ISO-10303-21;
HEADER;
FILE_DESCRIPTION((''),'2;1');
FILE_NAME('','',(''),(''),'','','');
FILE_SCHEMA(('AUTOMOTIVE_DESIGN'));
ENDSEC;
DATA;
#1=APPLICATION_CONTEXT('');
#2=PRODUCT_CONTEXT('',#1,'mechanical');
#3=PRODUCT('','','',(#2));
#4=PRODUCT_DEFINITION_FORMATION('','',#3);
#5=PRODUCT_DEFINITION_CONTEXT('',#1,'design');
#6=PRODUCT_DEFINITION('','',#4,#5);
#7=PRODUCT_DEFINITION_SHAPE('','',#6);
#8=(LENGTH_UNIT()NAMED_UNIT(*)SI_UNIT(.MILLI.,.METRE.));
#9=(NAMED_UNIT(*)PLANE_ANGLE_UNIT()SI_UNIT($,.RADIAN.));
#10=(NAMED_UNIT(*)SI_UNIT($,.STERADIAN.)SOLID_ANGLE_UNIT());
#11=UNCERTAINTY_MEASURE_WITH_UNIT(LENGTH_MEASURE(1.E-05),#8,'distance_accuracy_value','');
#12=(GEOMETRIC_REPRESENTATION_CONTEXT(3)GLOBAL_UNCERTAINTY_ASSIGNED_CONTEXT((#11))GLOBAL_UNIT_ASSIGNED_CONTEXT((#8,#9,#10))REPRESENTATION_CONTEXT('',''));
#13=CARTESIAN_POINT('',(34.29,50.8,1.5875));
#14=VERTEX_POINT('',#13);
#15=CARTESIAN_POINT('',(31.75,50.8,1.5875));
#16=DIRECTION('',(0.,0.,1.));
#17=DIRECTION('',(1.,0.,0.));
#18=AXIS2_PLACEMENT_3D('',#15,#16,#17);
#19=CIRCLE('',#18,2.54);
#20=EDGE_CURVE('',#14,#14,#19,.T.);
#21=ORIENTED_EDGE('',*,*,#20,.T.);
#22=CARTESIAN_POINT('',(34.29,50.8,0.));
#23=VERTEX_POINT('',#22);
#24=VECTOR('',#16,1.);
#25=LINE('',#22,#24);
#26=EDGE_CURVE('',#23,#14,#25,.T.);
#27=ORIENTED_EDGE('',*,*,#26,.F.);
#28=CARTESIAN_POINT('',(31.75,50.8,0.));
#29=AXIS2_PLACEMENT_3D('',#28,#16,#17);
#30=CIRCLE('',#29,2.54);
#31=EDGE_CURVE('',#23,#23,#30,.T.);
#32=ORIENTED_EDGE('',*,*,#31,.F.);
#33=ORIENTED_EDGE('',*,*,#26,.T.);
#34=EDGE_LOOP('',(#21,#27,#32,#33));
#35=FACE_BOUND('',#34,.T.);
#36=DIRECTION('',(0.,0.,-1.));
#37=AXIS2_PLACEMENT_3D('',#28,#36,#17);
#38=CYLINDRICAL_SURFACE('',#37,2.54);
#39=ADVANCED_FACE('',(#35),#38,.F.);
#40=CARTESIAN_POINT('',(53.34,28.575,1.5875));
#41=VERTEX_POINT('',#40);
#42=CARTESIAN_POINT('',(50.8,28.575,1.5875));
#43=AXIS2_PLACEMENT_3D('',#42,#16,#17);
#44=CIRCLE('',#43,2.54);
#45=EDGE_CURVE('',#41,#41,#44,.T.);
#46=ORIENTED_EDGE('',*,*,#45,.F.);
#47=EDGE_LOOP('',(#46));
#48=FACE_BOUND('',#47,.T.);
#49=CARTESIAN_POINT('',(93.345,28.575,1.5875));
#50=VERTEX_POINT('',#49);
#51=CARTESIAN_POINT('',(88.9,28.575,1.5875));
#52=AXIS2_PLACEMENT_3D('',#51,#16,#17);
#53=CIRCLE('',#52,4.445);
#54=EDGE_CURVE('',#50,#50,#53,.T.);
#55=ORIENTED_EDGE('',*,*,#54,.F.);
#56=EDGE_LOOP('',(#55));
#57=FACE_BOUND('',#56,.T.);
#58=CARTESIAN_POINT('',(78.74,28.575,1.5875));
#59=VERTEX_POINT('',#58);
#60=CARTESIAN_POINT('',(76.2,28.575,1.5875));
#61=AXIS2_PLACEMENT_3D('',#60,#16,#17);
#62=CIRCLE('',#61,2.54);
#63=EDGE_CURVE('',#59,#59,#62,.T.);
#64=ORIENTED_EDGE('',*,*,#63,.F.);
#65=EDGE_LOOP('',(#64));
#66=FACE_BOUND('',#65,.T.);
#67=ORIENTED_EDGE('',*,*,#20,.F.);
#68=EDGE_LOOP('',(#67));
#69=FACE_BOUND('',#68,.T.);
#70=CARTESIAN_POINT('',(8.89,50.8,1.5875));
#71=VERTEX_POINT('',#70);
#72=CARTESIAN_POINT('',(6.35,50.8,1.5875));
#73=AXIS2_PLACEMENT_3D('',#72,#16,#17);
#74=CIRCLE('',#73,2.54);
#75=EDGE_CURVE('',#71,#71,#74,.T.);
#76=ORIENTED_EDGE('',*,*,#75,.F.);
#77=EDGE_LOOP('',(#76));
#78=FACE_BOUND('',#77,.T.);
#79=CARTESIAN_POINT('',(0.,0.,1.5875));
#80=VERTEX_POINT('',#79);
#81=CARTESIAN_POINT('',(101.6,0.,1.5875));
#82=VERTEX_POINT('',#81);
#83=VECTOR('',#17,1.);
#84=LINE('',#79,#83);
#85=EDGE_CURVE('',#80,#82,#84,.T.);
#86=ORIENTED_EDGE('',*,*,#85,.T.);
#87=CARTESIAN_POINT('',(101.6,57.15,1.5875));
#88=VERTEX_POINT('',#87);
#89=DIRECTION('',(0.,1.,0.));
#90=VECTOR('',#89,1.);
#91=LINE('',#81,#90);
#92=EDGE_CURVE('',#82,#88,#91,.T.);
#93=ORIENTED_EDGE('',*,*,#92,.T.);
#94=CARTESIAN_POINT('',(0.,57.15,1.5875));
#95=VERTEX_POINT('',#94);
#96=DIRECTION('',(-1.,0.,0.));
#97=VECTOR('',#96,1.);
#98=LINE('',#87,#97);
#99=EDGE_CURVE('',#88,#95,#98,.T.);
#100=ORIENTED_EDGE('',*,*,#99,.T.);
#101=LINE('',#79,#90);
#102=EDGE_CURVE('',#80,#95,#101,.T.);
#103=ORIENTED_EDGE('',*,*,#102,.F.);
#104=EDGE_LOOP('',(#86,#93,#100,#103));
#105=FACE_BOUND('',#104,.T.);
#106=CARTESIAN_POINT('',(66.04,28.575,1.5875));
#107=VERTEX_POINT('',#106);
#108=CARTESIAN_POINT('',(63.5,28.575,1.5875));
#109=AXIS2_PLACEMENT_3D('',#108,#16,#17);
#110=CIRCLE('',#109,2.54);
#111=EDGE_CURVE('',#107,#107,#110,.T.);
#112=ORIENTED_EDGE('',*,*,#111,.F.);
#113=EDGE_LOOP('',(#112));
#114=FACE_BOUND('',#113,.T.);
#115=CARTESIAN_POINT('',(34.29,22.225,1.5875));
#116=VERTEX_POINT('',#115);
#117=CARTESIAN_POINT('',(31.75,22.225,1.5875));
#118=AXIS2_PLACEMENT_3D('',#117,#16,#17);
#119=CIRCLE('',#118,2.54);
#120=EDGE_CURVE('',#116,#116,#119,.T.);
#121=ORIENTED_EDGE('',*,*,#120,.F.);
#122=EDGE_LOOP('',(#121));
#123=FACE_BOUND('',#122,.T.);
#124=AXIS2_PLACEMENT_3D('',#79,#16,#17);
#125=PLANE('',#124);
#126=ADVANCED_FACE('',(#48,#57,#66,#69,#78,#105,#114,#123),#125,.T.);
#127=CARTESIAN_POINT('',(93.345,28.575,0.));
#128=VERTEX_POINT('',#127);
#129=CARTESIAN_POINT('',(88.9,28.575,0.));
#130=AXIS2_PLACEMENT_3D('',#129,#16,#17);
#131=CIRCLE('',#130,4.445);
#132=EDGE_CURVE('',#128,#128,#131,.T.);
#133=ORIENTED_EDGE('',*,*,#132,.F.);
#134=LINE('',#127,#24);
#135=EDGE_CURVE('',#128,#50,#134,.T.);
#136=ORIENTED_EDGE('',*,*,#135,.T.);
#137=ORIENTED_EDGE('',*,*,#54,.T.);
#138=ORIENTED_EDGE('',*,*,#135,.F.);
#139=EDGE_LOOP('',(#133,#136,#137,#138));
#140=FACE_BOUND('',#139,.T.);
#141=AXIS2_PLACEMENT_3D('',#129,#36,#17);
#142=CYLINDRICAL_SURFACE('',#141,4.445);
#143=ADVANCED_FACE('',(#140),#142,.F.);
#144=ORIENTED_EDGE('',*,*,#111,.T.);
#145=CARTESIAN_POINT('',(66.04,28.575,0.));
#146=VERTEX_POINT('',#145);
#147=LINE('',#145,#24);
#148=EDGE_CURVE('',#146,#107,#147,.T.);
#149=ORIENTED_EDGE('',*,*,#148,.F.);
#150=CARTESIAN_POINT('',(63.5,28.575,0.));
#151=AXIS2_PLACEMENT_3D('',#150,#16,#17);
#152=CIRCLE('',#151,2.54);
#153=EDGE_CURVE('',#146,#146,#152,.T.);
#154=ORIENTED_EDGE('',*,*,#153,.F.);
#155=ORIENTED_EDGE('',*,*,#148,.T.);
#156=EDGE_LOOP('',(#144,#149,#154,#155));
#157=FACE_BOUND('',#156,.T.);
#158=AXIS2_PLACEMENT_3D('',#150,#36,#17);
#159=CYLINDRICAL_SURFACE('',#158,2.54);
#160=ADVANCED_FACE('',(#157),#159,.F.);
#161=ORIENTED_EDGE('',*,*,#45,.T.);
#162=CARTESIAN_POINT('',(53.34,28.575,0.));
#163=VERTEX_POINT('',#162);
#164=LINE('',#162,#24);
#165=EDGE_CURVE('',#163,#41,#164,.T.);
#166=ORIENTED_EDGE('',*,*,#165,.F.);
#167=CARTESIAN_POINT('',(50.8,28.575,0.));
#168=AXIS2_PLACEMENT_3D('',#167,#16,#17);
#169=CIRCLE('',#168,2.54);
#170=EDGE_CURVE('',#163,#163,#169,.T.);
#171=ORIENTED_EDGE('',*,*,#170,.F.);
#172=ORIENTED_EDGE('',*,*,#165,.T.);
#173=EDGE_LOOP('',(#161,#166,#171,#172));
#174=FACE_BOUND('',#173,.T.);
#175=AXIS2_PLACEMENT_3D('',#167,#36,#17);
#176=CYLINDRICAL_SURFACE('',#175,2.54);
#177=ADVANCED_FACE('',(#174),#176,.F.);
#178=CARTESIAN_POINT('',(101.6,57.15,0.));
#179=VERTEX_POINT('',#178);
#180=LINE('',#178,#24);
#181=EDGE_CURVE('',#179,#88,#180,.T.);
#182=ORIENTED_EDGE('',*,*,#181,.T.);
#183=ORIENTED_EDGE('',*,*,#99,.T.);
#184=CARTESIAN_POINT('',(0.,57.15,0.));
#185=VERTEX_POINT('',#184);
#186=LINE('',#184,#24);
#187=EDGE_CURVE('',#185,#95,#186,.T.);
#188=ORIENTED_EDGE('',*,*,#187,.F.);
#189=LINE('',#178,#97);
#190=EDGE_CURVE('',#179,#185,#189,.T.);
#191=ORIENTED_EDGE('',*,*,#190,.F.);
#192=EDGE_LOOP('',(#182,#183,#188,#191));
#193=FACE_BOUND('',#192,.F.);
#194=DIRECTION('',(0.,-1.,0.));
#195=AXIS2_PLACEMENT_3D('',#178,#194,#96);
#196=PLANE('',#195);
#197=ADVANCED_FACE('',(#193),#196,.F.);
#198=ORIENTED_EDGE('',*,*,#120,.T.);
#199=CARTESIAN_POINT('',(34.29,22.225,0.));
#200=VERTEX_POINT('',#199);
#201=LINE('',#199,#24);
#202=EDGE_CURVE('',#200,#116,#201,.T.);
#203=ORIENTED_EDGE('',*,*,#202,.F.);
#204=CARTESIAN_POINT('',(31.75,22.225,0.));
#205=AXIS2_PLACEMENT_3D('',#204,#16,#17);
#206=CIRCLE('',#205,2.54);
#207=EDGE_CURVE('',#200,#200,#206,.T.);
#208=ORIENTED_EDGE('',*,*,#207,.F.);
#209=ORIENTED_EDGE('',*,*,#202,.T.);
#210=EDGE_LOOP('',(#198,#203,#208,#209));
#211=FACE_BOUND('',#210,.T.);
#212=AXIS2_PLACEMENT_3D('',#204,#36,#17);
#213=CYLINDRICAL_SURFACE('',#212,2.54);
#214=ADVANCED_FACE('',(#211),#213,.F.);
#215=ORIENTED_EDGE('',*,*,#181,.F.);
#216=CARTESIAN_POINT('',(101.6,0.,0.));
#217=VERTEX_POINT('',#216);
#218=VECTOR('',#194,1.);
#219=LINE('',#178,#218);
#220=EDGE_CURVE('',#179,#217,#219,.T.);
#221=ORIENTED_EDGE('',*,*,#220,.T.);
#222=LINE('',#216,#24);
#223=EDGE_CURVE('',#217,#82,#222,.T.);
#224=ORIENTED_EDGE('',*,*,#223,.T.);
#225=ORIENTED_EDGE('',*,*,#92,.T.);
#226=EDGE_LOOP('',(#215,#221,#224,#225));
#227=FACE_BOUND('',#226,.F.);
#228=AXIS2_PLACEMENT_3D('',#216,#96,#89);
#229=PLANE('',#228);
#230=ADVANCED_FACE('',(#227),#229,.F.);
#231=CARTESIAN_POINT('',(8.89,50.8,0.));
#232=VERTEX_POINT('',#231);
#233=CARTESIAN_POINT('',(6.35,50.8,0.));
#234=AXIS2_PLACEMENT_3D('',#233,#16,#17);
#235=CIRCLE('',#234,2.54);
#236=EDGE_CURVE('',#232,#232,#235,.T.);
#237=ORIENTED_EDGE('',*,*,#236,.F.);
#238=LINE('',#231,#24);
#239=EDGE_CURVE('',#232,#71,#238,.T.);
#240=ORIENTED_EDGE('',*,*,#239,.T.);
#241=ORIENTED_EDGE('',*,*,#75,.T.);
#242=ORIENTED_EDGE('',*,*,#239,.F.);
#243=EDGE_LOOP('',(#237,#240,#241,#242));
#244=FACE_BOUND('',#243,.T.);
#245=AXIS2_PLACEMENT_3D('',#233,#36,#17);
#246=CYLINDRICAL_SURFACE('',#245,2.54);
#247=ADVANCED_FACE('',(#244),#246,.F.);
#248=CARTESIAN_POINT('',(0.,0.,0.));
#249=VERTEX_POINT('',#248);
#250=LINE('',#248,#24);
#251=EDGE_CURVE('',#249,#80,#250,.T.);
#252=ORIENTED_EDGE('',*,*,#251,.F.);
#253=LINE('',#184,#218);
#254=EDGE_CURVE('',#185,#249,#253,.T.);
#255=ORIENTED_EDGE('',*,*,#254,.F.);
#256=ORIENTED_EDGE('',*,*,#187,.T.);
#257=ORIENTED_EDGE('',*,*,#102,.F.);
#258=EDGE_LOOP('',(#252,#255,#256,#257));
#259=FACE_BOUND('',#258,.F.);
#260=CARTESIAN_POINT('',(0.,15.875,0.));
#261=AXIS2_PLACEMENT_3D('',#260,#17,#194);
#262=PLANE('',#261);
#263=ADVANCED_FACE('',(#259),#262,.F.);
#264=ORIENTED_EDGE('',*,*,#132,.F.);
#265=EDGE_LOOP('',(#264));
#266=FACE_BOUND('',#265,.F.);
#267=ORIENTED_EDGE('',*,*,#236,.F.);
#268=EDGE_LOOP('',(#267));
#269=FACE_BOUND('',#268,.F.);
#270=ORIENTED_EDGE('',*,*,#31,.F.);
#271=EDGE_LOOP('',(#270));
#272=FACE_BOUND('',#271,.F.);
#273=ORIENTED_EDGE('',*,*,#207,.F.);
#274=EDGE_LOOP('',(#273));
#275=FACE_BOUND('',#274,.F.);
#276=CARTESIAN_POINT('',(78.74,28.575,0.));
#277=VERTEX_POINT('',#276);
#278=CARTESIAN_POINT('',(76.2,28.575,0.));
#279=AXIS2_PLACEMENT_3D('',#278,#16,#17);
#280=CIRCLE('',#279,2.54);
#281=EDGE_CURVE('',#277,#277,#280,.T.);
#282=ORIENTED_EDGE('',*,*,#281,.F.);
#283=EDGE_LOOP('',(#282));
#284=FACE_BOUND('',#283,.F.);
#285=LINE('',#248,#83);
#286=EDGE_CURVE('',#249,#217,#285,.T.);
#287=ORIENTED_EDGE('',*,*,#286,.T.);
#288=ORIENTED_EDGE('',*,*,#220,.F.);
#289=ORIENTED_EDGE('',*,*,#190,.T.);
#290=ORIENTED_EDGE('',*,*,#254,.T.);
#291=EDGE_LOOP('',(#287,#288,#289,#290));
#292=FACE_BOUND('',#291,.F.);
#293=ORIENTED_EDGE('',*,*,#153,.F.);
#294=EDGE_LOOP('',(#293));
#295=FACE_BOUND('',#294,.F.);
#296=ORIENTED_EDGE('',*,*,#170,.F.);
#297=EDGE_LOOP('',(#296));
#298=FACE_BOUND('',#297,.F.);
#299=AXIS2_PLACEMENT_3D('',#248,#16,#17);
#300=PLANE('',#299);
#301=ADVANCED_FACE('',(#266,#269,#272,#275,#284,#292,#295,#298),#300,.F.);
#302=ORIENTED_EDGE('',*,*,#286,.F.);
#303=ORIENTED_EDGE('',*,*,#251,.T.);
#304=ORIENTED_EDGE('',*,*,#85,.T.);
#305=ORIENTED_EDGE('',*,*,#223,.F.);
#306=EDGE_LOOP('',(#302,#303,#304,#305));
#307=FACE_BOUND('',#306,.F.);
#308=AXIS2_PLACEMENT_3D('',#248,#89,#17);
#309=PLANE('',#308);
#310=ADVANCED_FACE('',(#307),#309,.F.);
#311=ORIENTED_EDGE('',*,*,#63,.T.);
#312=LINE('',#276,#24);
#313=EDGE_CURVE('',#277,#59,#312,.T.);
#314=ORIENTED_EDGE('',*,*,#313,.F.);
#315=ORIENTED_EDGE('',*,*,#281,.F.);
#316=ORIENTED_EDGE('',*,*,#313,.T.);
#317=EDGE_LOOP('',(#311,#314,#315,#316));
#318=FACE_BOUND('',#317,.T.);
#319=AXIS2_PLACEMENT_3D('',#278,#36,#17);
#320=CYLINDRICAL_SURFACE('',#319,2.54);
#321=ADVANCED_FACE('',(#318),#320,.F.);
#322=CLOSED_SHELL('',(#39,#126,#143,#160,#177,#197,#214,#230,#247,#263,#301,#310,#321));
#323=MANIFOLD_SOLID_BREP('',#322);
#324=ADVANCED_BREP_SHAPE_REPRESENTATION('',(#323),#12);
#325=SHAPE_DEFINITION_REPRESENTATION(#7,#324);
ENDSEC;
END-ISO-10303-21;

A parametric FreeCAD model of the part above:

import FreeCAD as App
import Part
import Sketcher
from FreeCAD import Vector
Q = App.Units.Quantity

doc = App.newDocument("Part")
body = doc.addObject("PartDesign::Body", "Body")

sketch1 = body.newObject("Sketcher::SketchObject", "Sketch")
sketch1.AttachmentSupport = (doc.getObject("XY_Plane"), [""])
sketch1.MapMode = "FlatFace"
sketch1.addGeometry([
    Part.LineSegment(Vector(0, 0, 0), Vector(101.6, 0, 0)),
    Part.LineSegment(Vector(101.6, 0, 0), Vector(101.6, 57.15, 0)),
    Part.LineSegment(Vector(101.6, 57.15, 0), Vector(0, 57.15, 0)),
    Part.LineSegment(Vector(0, 57.15, 0), Vector(0, 0, 0)),
    Part.Circle(Vector(76.2, 28.575, 0), Vector(0, 0, 1), 2.54),
    Part.Circle(Vector(88.9, 28.575, 0), Vector(0, 0, 1), 4.445),
    Part.Circle(Vector(31.75, 22.225, 0), Vector(0, 0, 1), 2.54),
    Part.Circle(Vector(50.8, 28.575, 0), Vector(0, 0, 1), 2.54),
    Part.Circle(Vector(6.35, 50.8, 0), Vector(0, 0, 1), 2.54),
    Part.Circle(Vector(31.75, 50.8, 0), Vector(0, 0, 1), 2.54),
    Part.Circle(Vector(63.5, 28.575, 0), Vector(0, 0, 1), 2.54),
], False)
sketch1.addConstraint([
    Sketcher.Constraint("Coincident", 0, 2, 1, 1),
    Sketcher.Constraint("Coincident", 1, 2, 2, 1),
    Sketcher.Constraint("Coincident", 2, 2, 3, 1),
    Sketcher.Constraint("Coincident", 3, 2, 0, 1),
    Sketcher.Constraint("Horizontal", 0),
    Sketcher.Constraint("Vertical", 1),
    Sketcher.Constraint("Horizontal", 2),
    Sketcher.Constraint("Vertical", 3),
    Sketcher.Constraint("Coincident", 3, 2, -1, 1),
    Sketcher.Constraint("Equal", 4, 6),
    Sketcher.Constraint("Equal", 6, 7),
    Sketcher.Constraint("Equal", 7, 8),
    Sketcher.Constraint("Equal", 8, 9),
    Sketcher.Constraint("Equal", 9, 10),
    Sketcher.Constraint("Horizontal", 4, 3, 5, 3),
    Sketcher.Constraint("Horizontal", 5, 3, 7, 3),
    Sketcher.Constraint("Horizontal", 8, 3, 9, 3),
    Sketcher.Constraint("Horizontal", 7, 3, 10, 3),
    Sketcher.Constraint("Vertical", 6, 3, 9, 3),
    Sketcher.Constraint("Diameter", 4, Q("0.2 in")),
    Sketcher.Constraint("Diameter", 5, Q("0.35 in")),
    Sketcher.Constraint("DistanceX", 0, 1, 0, 2, Q("4 in")),
    Sketcher.Constraint("DistanceY", 1, 1, 1, 2, Q("2.25 in")),
    Sketcher.Constraint("DistanceX", 6, 3, 5, 3, Q("2.25 in")),
    Sketcher.Constraint("DistanceX", -1, 1, 4, 3, Q("3 in")),
    Sketcher.Constraint("DistanceX", -1, 1, 7, 3, Q("2 in")),
    Sketcher.Constraint("DistanceY", -1, 1, 8, 3, Q("2 in")),
    Sketcher.Constraint("DistanceX", 8, 3, 6, 3, Q("1 in")),
    Sketcher.Constraint("DistanceX", 10, 3, 5, 3, Q("1 in")),
    Sketcher.Constraint("DistanceX", -1, 1, 5, 3, Q("3.5 in")),
    Sketcher.Constraint("DistanceY", 6, 3, 4, 3, Q("0.25 in")),
    Sketcher.Constraint("DistanceY", -1, 1, 4, 3, Q("1.125 in")),
])
pad1 = body.newObject("PartDesign::Pad", "Pad")
pad1.Profile = sketch1
pad1.Length = Q("0.0625 in")

doc.recompute()
